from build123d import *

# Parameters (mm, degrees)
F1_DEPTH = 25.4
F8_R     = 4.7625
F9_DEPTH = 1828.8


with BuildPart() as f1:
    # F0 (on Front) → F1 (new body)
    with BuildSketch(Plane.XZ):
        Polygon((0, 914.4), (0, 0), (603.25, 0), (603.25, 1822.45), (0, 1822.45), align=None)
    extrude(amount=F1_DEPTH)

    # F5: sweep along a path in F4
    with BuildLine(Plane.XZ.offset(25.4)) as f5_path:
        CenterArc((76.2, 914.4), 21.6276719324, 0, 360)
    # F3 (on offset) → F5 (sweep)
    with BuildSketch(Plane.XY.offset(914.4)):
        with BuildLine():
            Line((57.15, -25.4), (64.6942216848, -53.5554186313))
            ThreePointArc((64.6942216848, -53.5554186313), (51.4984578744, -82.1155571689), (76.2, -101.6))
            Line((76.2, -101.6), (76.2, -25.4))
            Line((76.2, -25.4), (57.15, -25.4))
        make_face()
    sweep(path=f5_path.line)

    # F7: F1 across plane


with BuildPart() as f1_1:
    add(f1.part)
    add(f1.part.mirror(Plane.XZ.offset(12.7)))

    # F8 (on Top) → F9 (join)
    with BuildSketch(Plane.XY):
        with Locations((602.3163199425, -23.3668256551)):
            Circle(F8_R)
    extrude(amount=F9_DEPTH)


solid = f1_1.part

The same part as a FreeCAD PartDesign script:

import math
import FreeCAD as App
import Part
import Sketcher
from FreeCAD import Vector
Q = App.Units.Quantity


def add_polygon(sketch, points):
    """Adds a closed chain of lines whose ends are joined by coincident constraints."""
    first, n = sketch.GeometryCount, len(points)
    for a, b in zip(points, points[1:] + points[:1]):
        sketch.addGeometry(Part.LineSegment(App.Vector(*a, 0), App.Vector(*b, 0)), False)
    for i in range(n):
        sketch.addConstraint(Sketcher.Constraint("Coincident", first + i, 2, first + (i + 1) % n, 1))

doc = App.newDocument("Part")
body = doc.addObject("PartDesign::Body", "Body")

# Sketch on XZ plane
sketch1 = body.newObject("Sketcher::SketchObject", "Sketch")
sketch1.AttachmentSupport = (doc.getObject("XZ_Plane"), [""])
sketch1.MapMode = "FlatFace"
add_polygon(sketch1, [(0, 0), (603, 0), (603, 1822), (0, 1822)])  # lines 0-3
sketch1.addConstraint([
    Sketcher.Constraint("Horizontal", 0),
    Sketcher.Constraint("Vertical", 1),
    Sketcher.Constraint("Horizontal", 2),
    Sketcher.Constraint("Vertical", 3),
    Sketcher.Constraint("Coincident", 3, 2, -1, 1),
    Sketcher.Constraint("DistanceX", 0, 1, 0, 2, Q("23.75 in")),
    Sketcher.Constraint("DistanceY", 1, 1, 1, 2, Q("71.75 in")),
])
pad1 = body.newObject("PartDesign::Pad", "Pad")
pad1.Profile = sketch1
pad1.Length = Q("1 in")

# Sketch on XY plane
sketch2 = body.newObject("Sketcher::SketchObject", "Sketch001")
sketch2.AttachmentSupport = (doc.getObject("XY_Plane"), [""])
sketch2.MapMode = "FlatFace"
sketch2.AttachmentOffset = App.Placement(Vector(0, 0, 36 * 25.4), App.Rotation())
sketch2.addGeometry([
    Part.LineSegment(Vector(57, -25, 0), Vector(65, -54, 0)),
    Part.ArcOfCircle(Part.Circle(Vector(76, -76, 0), Vector(0, 0, 1), 25), math.radians(117), math.radians(270)),
    Part.LineSegment(Vector(76, -102, 0), Vector(76, -25, 0)),
    Part.LineSegment(Vector(76, -25, 0), Vector(57, -25, 0)),
], False)
sketch2.addConstraint([
    Sketcher.Constraint("Coincident", 0, 2, 1, 1),
    Sketcher.Constraint("Coincident", 1, 2, 2, 1),
    Sketcher.Constraint("Coincident", 2, 2, 3, 1),
    Sketcher.Constraint("Coincident", 3, 2, 0, 1),
    Sketcher.Constraint("Vertical", 2),
    Sketcher.Constraint("Horizontal", 3),
    Sketcher.Constraint("Radius", 1, Q("1 in")),
    Sketcher.Constraint("DistanceY", 2, 1, 2, 2, Q("3 in")),
    Sketcher.Constraint("DistanceX", -1, 1, 1, 3, Q("3 in")),
    Sketcher.Constraint("DistanceY", 1, 3, -1, 1, Q("3 in")),
    Sketcher.Constraint("DistanceX", -1, 1, 1, 2, Q("3 in")),
    Sketcher.Constraint("Angle", 0, Q("-75 deg")),
    Sketcher.Constraint("DistanceX", 3, 2, 3, 1, Q("0.75 in")),
])

# Sketch on XZ plane
sketch3 = body.newObject("Sketcher::SketchObject", "Sketch002")
sketch3.AttachmentSupport = (doc.getObject("XZ_Plane"), [""])
sketch3.MapMode = "FlatFace"
sketch3.AttachmentOffset = App.Placement(Vector(0, 0, 1 * 25.4), App.Rotation())
sketch3.addGeometry(Part.Circle(Vector(76, 914, 0), Vector(0, 0, 1), 22), False)
sketch3.addConstraint([
    Sketcher.Constraint("DistanceX", -1, 1, 0, 3, Q("3 in")),
    Sketcher.Constraint("DistanceY", -1, 1, 0, 3, Q("36 in")),
    Sketcher.Constraint("Diameter", 0, 43.255344),
])
doc.recompute()

additivepipe = body.newObject("PartDesign::AdditivePipe", "AdditivePipe")
additivepipe.Profile = sketch2
additivepipe.Spine = (sketch3, ["Edge1"])
body2 = doc.addObject("PartDesign::Body", "Body001")
doc.recompute()

body2.BaseFeature = body
doc.recompute()

mirroring = doc.addObject("Part::Mirroring", "Mirroring")
mirroring.Source = body
mirroring.Base = Vector(0, -12.7, 0)
mirroring.Normal = Vector(0, -1, 0)
body3 = doc.addObject("PartDesign::Body", "Body002")
body3.BaseFeature = mirroring
boolean = body2.newObject("PartDesign::Boolean", "Boolean")
boolean.Type = "Fuse"
boolean.addObjects([body3])
doc.recompute()

# Sketch on XY plane
sketch4 = body2.newObject("Sketcher::SketchObject", "Sketch003")
sketch4.AttachmentSupport = (doc.getObject("XY_Plane001"), [""])
sketch4.MapMode = "FlatFace"
sketch4.addGeometry(Part.Circle(Vector(602.3, -23.4, 0), Vector(0, 0, 1), 4.8), False)
sketch4.addConstraint([
    Sketcher.Constraint("Diameter", 0, Q("0.375 in")),
    Sketcher.Constraint("DistanceX", -1, 1, 0, 3, 602.31632),
    Sketcher.Constraint("DistanceY", 0, 3, -1, 1, 23.366826),
])
pad2 = body2.newObject("PartDesign::Pad", "Pad001")
pad2.Profile = sketch4
pad2.Length = Q("72 in")
mirroring.Visibility = False

doc.recompute()
